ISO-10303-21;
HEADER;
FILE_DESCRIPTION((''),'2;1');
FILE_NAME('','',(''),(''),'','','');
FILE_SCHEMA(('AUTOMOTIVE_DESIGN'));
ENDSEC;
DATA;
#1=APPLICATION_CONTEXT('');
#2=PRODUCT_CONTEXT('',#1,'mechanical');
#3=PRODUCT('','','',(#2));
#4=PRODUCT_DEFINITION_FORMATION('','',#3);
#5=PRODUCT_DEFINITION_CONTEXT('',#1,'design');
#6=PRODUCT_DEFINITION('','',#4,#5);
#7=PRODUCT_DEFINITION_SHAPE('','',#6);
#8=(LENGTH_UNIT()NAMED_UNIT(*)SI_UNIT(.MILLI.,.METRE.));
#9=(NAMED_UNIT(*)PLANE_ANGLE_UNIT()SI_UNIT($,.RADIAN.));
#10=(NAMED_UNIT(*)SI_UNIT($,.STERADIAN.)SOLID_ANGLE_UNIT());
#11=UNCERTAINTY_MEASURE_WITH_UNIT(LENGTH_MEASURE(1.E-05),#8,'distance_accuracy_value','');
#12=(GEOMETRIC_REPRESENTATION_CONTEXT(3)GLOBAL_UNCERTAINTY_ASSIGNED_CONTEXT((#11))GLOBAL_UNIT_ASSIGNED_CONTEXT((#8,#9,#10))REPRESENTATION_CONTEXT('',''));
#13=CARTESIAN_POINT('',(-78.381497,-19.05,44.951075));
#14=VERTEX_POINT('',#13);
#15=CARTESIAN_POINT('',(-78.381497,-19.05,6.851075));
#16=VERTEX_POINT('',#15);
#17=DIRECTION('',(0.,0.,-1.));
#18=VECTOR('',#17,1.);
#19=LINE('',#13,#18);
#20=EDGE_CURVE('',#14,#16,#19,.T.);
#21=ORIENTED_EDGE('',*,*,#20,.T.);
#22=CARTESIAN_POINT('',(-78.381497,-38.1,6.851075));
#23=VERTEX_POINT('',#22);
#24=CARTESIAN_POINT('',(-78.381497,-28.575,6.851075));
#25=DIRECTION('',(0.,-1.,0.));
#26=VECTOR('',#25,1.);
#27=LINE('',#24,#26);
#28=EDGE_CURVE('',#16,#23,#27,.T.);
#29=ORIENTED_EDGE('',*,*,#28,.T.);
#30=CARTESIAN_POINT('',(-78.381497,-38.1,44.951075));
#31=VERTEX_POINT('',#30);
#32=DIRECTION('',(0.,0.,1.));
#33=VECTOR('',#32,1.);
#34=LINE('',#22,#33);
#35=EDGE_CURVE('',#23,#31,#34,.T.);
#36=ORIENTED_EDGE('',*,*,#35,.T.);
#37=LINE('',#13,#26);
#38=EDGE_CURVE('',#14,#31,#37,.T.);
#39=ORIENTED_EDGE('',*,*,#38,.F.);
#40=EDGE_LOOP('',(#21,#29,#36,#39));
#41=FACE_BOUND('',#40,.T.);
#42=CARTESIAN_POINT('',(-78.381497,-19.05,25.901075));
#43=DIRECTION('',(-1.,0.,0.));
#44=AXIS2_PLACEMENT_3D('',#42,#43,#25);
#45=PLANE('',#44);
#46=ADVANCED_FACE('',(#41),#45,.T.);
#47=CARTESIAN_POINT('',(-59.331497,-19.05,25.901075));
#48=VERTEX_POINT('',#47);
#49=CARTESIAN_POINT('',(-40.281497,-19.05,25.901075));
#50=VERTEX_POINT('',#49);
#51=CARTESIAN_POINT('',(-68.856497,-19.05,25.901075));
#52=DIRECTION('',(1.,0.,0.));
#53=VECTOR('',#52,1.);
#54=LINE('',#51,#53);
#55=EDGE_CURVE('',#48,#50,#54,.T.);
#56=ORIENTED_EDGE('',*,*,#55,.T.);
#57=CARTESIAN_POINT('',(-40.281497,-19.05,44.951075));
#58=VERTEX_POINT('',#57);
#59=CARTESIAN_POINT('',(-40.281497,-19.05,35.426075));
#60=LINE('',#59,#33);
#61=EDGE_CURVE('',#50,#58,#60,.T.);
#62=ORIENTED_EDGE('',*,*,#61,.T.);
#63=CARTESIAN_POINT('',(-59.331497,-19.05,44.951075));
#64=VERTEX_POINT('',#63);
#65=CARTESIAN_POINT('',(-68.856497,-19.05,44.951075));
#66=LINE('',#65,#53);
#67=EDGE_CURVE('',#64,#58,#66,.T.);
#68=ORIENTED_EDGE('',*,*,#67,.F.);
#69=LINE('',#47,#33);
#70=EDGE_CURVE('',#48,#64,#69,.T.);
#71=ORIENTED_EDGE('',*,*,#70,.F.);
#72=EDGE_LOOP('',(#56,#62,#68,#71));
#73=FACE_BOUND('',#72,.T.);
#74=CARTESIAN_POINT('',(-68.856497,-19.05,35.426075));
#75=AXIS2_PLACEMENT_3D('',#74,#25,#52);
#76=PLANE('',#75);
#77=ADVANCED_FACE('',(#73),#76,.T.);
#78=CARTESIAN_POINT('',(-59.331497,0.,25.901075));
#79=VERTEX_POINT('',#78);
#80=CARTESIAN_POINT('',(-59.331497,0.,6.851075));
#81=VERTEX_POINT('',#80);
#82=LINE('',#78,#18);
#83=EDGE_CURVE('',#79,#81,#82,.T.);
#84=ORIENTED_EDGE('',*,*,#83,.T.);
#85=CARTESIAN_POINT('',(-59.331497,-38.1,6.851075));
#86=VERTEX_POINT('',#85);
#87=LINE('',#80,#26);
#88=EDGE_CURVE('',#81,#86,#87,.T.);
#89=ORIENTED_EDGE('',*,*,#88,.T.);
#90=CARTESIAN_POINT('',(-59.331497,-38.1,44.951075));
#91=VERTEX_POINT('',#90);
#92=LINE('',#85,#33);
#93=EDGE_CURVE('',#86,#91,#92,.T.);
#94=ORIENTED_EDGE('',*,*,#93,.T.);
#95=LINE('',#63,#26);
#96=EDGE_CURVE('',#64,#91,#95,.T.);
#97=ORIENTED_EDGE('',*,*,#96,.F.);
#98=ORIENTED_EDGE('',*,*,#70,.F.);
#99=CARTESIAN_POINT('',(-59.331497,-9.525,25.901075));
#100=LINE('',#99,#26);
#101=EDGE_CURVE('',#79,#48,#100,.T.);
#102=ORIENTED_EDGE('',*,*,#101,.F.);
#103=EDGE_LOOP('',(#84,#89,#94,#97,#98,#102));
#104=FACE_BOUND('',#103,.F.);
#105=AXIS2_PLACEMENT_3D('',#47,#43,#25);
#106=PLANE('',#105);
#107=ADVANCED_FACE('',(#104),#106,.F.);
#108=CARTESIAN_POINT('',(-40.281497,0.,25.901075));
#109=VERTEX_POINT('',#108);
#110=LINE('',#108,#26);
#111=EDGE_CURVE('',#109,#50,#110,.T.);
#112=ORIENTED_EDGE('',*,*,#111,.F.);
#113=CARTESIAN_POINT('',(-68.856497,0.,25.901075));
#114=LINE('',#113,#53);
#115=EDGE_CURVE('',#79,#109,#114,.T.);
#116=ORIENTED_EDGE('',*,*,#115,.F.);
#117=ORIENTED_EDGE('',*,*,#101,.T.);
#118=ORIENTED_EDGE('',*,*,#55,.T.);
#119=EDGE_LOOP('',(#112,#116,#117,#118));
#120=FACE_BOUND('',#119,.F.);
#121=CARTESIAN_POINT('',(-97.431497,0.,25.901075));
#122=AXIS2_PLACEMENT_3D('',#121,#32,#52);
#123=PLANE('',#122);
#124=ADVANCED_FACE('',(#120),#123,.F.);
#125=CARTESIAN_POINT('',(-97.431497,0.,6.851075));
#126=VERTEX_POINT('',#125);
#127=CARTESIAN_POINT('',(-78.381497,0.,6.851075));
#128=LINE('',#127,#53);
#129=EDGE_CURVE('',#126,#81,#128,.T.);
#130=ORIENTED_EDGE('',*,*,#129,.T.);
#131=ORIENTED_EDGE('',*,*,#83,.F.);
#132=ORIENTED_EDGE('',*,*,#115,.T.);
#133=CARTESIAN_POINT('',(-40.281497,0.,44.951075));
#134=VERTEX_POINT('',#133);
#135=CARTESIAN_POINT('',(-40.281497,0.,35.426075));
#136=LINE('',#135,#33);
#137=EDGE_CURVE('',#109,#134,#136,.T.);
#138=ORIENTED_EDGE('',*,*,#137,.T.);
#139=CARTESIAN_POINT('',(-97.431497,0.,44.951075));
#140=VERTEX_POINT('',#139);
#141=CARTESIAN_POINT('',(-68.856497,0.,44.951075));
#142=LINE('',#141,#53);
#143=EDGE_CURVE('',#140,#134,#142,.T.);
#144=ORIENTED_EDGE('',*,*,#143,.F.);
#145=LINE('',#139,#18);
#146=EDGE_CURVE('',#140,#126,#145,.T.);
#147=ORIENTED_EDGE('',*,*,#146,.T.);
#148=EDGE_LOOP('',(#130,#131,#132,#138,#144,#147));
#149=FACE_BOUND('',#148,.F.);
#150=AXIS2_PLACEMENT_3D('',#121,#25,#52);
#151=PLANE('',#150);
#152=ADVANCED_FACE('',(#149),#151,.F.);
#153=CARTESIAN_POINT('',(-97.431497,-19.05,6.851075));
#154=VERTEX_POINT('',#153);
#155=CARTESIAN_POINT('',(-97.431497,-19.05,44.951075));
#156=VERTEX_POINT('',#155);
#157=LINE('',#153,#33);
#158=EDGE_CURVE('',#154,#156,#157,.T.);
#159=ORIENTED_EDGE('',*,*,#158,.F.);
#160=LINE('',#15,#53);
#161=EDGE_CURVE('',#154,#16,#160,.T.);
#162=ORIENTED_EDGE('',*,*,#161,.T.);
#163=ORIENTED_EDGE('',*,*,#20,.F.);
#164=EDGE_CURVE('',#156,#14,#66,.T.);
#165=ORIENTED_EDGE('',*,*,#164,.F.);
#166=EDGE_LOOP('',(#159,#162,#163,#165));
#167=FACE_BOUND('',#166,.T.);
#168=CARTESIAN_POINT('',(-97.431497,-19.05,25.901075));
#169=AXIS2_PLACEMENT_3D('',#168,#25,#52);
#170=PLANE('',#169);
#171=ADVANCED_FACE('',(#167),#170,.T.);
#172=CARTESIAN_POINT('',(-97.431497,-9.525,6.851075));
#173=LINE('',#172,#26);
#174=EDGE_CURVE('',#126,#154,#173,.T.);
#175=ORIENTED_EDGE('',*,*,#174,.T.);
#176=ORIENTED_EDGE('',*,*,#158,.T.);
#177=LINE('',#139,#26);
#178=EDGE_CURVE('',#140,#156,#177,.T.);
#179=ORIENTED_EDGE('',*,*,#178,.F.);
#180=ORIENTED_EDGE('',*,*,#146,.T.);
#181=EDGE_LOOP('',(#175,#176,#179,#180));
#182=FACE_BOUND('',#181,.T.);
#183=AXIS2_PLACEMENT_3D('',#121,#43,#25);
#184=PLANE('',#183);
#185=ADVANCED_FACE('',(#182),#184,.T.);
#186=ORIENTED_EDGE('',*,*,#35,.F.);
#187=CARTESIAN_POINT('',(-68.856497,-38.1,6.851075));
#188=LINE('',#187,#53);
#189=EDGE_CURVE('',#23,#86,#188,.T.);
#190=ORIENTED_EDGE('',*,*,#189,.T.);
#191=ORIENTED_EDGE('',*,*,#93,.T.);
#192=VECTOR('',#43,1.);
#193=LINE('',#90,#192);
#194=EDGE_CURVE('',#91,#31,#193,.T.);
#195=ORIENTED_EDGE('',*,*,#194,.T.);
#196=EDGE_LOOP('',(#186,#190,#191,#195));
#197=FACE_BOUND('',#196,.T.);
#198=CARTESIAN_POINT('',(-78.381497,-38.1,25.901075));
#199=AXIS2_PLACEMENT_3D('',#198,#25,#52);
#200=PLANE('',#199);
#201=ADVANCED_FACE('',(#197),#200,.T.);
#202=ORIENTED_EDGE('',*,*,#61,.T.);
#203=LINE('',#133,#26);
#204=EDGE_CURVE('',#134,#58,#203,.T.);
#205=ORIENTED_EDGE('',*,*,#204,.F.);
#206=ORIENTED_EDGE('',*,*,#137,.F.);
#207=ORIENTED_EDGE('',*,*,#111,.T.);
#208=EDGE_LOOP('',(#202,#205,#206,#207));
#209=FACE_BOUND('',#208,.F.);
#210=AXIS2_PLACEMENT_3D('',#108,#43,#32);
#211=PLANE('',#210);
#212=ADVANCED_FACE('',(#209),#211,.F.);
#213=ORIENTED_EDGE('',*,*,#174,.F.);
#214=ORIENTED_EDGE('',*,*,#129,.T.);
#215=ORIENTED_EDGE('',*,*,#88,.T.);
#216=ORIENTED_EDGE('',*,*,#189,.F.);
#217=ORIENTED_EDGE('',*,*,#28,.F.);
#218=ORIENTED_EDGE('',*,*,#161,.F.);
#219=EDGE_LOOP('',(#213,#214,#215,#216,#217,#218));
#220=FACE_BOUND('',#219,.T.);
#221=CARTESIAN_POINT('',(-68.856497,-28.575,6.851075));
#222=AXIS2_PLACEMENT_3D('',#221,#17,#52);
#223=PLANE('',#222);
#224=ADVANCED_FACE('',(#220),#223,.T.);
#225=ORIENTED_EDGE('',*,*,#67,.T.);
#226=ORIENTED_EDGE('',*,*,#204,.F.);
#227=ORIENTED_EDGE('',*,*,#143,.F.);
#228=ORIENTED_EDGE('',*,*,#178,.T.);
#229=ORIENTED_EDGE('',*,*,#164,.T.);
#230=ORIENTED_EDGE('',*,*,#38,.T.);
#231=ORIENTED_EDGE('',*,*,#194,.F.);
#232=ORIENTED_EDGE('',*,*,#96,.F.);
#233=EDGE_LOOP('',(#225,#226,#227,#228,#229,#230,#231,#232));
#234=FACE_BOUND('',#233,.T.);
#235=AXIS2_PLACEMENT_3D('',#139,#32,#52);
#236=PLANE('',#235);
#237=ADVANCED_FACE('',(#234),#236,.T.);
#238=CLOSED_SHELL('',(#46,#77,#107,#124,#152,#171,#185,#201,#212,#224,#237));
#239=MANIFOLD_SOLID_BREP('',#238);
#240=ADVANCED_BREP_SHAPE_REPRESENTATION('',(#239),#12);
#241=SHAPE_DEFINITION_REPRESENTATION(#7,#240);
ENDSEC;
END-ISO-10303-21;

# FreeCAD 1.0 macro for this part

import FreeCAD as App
import Part
import Sketcher
Q = App.Units.Quantity

doc = App.newDocument("Part")
body = doc.addObject("PartDesign::Body", "Body")

# Sketch on XZ plane
sketch1 = body.newObject("Sketcher::SketchObject", "Sketch")
sketch1.AttachmentSupport = (doc.getObject("XZ_Plane"), [""])
sketch1.MapMode = "FlatFace"
sketch1.addGeometry(Part.LineSegment(App.Vector(-97, 45, 0), App.Vector(-97, 26, 0)), False)
sketch1.addGeometry(Part.LineSegment(App.Vector(-97, 26, 0), App.Vector(-40, 26, 0)), False)
sketch1.addGeometry(Part.LineSegment(App.Vector(-40, 26, 0), App.Vector(-40, 45, 0)), False)
sketch1.addGeometry(Part.LineSegment(App.Vector(-40, 45, 0), App.Vector(-97, 45, 0)), False)
sketch1.addConstraint(Sketcher.Constraint("Coincident", 0, 2, 1, 1))
sketch1.addConstraint(Sketcher.Constraint("Coincident", 1, 2, 2, 1))
sketch1.addConstraint(Sketcher.Constraint("Coincident", 2, 2, 3, 1))
sketch1.addConstraint(Sketcher.Constraint("Coincident", 3, 2, 0, 1))
sketch1.addConstraint(Sketcher.Constraint("Vertical", 0))
sketch1.addConstraint(Sketcher.Constraint("Horizontal", 1))
sketch1.addConstraint(Sketcher.Constraint("Vertical", 2))
sketch1.addConstraint(Sketcher.Constraint("Horizontal", 3))
sketch1.addConstraint(Sketcher.Constraint("DistanceX", 1, 1, 1, 2, Q("2.25 in")))
sketch1.addConstraint(Sketcher.Constraint("DistanceY", 0, 2, 0, 1, Q("0.75 in")))
sketch1.addConstraint(Sketcher.Constraint("DistanceX", 0, 2, -1, 1, Q("97.431497 mm")))
sketch1.addConstraint(Sketcher.Constraint("DistanceY", -1, 1, 0, 2, Q("25.901075 mm")))
pad1 = body.newObject("PartDesign::Pad", "Pad")
pad1.Profile = sketch1
pad1.Length = Q("0.75 in")

# Sketch on XZ plane
sketch2 = body.newObject("Sketcher::SketchObject", "Sketch001")
sketch2.AttachmentSupport = (doc.getObject("XZ_Plane"), [""])
sketch2.MapMode = "FlatFace"
sketch2.AttachmentOffset = App.Placement(App.Vector(0, 0, 0.75 * 25.4), App.Rotation())
sketch2.addGeometry(Part.LineSegment(App.Vector(-59, 45, 0), App.Vector(-78, 45, 0)), False)
sketch2.addGeometry(Part.LineSegment(App.Vector(-78, 45, 0), App.Vector(-78, 26, 0)), False)
sketch2.addGeometry(Part.LineSegment(App.Vector(-78, 26, 0), App.Vector(-59, 26, 0)), False)
sketch2.addGeometry(Part.LineSegment(App.Vector(-59, 26, 0), App.Vector(-59, 45, 0)), False)
sketch2.addConstraint(Sketcher.Constraint("Coincident", 0, 2, 1, 1))
sketch2.addConstraint(Sketcher.Constraint("Coincident", 1, 2, 2, 1))
sketch2.addConstraint(Sketcher.Constraint("Coincident", 2, 2, 3, 1))
sketch2.addConstraint(Sketcher.Constraint("Coincident", 3, 2, 0, 1))
sketch2.addConstraint(Sketcher.Constraint("Horizontal", 0))
sketch2.addConstraint(Sketcher.Constraint("Vertical", 1))
sketch2.addConstraint(Sketcher.Constraint("Horizontal", 2))
sketch2.addConstraint(Sketcher.Constraint("Vertical", 3))
sketch2.addConstraint(Sketcher.Constraint("Equal", 2, 1))
sketch2.addConstraint(Sketcher.Constraint("DistanceX", 0, 2, 0, 1, Q("0.75 in")))
sketch2.addConstraint(Sketcher.Constraint("DistanceX", 0, 2, -1, 1, Q("78.381497 mm")))
sketch2.addConstraint(Sketcher.Constraint("DistanceY", -1, 1, 0, 2, Q("44.951075 mm")))
pad2 = body.newObject("PartDesign::Pad", "Pad001")
pad2.Profile = sketch2
pad2.Length = Q("0.75 in")

# Sketch on XY plane
sketch3 = body.newObject("Sketcher::SketchObject", "Sketch002")
sketch3.AttachmentSupport = (doc.getObject("XY_Plane"), [""])
sketch3.MapMode = "FlatFace"
sketch3.AttachmentOffset = App.Placement(App.Vector(0, 0, 25.901075), App.Rotation())
sketch3.addGeometry(Part.LineSegment(App.Vector(-97, -19, 0), App.Vector(-97, 0, 0)), False)
sketch3.addGeometry(Part.LineSegment(App.Vector(-97, 0, 0), App.Vector(-59, 0, 0)), False)
sketch3.addGeometry(Part.LineSegment(App.Vector(-59, 0, 0), App.Vector(-59, -19, 0)), False)
sketch3.addGeometry(Part.LineSegment(App.Vector(-59, -19, 0), App.Vector(-97, -19, 0)), False)
sketch3.addConstraint(Sketcher.Constraint("Coincident", 0, 2, 1, 1))
sketch3.addConstraint(Sketcher.Constraint("Coincident", 1, 2, 2, 1))
sketch3.addConstraint(Sketcher.Constraint("Coincident", 2, 2, 3, 1))
sketch3.addConstraint(Sketcher.Constraint("Coincident", 3, 2, 0, 1))
sketch3.addConstraint(Sketcher.Constraint("Vertical", 0))
sketch3.addConstraint(Sketcher.Constraint("Horizontal", 1))
sketch3.addConstraint(Sketcher.Constraint("Vertical", 2))
sketch3.addConstraint(Sketcher.Constraint("Horizontal", 3))
sketch3.addConstraint(Sketcher.Constraint("PointOnObject", 0, 2, -1))
sketch3.addConstraint(Sketcher.Constraint("DistanceX", 1, 1, 1, 2, Q("1.5 in")))
sketch3.addConstraint(Sketcher.Constraint("DistanceY", 0, 1, 0, 2, Q("0.75 in")))
sketch3.addConstraint(Sketcher.Constraint("DistanceX", 0, 2, -1, 1, Q("97.431497 mm")))
pad3 = body.newObject("PartDesign::Pad", "Pad002")
pad3.Profile = sketch3
pad3.Length = Q("0.75 in")
pad3.Reversed = True

# Sketch on XY plane
sketch4 = body.newObject("Sketcher::SketchObject", "Sketch003")
sketch4.AttachmentSupport = (doc.getObject("XY_Plane"), [""])
sketch4.MapMode = "FlatFace"
sketch4.AttachmentOffset = App.Placement(App.Vector(0, 0, 25.901075), App.Rotation())
sketch4.addGeometry(Part.LineSegment(App.Vector(-78, -38, 0), App.Vector(-78, -19, 0)), False)
sketch4.addGeometry(Part.LineSegment(App.Vector(-78, -19, 0), App.Vector(-59, -19, 0)), False)
sketch4.addGeometry(Part.LineSegment(App.Vector(-59, -19, 0), App.Vector(-59, -38, 0)), False)
sketch4.addGeometry(Part.LineSegment(App.Vector(-59, -38, 0), App.Vector(-78, -38, 0)), False)
sketch4.addConstraint(Sketcher.Constraint("Coincident", 0, 2, 1, 1))
sketch4.addConstraint(Sketcher.Constraint("Coincident", 1, 2, 2, 1))
sketch4.addConstraint(Sketcher.Constraint("Coincident", 2, 2, 3, 1))
sketch4.addConstraint(Sketcher.Constraint("Coincident", 3, 2, 0, 1))
sketch4.addConstraint(Sketcher.Constraint("Vertical", 0))
sketch4.addConstraint(Sketcher.Constraint("Horizontal", 1))
sketch4.addConstraint(Sketcher.Constraint("Vertical", 2))
sketch4.addConstraint(Sketcher.Constraint("Horizontal", 3))
sketch4.addConstraint(Sketcher.Constraint("Equal", 3, 0))
sketch4.addConstraint(Sketcher.Constraint("DistanceX", 1, 1, 1, 2, Q("0.75 in")))
sketch4.addConstraint(Sketcher.Constraint("DistanceY", 2, 2, -1, 1, Q("1.5 in")))
sketch4.addConstraint(Sketcher.Constraint("DistanceX", 0, 2, -1, 1, Q("78.381497 mm")))
pad4 = body.newObject("PartDesign::Pad", "Pad003")
pad4.Profile = sketch4
pad4.Length = Q("0.75 in")
pad4.Reversed = True

doc.recompute()
